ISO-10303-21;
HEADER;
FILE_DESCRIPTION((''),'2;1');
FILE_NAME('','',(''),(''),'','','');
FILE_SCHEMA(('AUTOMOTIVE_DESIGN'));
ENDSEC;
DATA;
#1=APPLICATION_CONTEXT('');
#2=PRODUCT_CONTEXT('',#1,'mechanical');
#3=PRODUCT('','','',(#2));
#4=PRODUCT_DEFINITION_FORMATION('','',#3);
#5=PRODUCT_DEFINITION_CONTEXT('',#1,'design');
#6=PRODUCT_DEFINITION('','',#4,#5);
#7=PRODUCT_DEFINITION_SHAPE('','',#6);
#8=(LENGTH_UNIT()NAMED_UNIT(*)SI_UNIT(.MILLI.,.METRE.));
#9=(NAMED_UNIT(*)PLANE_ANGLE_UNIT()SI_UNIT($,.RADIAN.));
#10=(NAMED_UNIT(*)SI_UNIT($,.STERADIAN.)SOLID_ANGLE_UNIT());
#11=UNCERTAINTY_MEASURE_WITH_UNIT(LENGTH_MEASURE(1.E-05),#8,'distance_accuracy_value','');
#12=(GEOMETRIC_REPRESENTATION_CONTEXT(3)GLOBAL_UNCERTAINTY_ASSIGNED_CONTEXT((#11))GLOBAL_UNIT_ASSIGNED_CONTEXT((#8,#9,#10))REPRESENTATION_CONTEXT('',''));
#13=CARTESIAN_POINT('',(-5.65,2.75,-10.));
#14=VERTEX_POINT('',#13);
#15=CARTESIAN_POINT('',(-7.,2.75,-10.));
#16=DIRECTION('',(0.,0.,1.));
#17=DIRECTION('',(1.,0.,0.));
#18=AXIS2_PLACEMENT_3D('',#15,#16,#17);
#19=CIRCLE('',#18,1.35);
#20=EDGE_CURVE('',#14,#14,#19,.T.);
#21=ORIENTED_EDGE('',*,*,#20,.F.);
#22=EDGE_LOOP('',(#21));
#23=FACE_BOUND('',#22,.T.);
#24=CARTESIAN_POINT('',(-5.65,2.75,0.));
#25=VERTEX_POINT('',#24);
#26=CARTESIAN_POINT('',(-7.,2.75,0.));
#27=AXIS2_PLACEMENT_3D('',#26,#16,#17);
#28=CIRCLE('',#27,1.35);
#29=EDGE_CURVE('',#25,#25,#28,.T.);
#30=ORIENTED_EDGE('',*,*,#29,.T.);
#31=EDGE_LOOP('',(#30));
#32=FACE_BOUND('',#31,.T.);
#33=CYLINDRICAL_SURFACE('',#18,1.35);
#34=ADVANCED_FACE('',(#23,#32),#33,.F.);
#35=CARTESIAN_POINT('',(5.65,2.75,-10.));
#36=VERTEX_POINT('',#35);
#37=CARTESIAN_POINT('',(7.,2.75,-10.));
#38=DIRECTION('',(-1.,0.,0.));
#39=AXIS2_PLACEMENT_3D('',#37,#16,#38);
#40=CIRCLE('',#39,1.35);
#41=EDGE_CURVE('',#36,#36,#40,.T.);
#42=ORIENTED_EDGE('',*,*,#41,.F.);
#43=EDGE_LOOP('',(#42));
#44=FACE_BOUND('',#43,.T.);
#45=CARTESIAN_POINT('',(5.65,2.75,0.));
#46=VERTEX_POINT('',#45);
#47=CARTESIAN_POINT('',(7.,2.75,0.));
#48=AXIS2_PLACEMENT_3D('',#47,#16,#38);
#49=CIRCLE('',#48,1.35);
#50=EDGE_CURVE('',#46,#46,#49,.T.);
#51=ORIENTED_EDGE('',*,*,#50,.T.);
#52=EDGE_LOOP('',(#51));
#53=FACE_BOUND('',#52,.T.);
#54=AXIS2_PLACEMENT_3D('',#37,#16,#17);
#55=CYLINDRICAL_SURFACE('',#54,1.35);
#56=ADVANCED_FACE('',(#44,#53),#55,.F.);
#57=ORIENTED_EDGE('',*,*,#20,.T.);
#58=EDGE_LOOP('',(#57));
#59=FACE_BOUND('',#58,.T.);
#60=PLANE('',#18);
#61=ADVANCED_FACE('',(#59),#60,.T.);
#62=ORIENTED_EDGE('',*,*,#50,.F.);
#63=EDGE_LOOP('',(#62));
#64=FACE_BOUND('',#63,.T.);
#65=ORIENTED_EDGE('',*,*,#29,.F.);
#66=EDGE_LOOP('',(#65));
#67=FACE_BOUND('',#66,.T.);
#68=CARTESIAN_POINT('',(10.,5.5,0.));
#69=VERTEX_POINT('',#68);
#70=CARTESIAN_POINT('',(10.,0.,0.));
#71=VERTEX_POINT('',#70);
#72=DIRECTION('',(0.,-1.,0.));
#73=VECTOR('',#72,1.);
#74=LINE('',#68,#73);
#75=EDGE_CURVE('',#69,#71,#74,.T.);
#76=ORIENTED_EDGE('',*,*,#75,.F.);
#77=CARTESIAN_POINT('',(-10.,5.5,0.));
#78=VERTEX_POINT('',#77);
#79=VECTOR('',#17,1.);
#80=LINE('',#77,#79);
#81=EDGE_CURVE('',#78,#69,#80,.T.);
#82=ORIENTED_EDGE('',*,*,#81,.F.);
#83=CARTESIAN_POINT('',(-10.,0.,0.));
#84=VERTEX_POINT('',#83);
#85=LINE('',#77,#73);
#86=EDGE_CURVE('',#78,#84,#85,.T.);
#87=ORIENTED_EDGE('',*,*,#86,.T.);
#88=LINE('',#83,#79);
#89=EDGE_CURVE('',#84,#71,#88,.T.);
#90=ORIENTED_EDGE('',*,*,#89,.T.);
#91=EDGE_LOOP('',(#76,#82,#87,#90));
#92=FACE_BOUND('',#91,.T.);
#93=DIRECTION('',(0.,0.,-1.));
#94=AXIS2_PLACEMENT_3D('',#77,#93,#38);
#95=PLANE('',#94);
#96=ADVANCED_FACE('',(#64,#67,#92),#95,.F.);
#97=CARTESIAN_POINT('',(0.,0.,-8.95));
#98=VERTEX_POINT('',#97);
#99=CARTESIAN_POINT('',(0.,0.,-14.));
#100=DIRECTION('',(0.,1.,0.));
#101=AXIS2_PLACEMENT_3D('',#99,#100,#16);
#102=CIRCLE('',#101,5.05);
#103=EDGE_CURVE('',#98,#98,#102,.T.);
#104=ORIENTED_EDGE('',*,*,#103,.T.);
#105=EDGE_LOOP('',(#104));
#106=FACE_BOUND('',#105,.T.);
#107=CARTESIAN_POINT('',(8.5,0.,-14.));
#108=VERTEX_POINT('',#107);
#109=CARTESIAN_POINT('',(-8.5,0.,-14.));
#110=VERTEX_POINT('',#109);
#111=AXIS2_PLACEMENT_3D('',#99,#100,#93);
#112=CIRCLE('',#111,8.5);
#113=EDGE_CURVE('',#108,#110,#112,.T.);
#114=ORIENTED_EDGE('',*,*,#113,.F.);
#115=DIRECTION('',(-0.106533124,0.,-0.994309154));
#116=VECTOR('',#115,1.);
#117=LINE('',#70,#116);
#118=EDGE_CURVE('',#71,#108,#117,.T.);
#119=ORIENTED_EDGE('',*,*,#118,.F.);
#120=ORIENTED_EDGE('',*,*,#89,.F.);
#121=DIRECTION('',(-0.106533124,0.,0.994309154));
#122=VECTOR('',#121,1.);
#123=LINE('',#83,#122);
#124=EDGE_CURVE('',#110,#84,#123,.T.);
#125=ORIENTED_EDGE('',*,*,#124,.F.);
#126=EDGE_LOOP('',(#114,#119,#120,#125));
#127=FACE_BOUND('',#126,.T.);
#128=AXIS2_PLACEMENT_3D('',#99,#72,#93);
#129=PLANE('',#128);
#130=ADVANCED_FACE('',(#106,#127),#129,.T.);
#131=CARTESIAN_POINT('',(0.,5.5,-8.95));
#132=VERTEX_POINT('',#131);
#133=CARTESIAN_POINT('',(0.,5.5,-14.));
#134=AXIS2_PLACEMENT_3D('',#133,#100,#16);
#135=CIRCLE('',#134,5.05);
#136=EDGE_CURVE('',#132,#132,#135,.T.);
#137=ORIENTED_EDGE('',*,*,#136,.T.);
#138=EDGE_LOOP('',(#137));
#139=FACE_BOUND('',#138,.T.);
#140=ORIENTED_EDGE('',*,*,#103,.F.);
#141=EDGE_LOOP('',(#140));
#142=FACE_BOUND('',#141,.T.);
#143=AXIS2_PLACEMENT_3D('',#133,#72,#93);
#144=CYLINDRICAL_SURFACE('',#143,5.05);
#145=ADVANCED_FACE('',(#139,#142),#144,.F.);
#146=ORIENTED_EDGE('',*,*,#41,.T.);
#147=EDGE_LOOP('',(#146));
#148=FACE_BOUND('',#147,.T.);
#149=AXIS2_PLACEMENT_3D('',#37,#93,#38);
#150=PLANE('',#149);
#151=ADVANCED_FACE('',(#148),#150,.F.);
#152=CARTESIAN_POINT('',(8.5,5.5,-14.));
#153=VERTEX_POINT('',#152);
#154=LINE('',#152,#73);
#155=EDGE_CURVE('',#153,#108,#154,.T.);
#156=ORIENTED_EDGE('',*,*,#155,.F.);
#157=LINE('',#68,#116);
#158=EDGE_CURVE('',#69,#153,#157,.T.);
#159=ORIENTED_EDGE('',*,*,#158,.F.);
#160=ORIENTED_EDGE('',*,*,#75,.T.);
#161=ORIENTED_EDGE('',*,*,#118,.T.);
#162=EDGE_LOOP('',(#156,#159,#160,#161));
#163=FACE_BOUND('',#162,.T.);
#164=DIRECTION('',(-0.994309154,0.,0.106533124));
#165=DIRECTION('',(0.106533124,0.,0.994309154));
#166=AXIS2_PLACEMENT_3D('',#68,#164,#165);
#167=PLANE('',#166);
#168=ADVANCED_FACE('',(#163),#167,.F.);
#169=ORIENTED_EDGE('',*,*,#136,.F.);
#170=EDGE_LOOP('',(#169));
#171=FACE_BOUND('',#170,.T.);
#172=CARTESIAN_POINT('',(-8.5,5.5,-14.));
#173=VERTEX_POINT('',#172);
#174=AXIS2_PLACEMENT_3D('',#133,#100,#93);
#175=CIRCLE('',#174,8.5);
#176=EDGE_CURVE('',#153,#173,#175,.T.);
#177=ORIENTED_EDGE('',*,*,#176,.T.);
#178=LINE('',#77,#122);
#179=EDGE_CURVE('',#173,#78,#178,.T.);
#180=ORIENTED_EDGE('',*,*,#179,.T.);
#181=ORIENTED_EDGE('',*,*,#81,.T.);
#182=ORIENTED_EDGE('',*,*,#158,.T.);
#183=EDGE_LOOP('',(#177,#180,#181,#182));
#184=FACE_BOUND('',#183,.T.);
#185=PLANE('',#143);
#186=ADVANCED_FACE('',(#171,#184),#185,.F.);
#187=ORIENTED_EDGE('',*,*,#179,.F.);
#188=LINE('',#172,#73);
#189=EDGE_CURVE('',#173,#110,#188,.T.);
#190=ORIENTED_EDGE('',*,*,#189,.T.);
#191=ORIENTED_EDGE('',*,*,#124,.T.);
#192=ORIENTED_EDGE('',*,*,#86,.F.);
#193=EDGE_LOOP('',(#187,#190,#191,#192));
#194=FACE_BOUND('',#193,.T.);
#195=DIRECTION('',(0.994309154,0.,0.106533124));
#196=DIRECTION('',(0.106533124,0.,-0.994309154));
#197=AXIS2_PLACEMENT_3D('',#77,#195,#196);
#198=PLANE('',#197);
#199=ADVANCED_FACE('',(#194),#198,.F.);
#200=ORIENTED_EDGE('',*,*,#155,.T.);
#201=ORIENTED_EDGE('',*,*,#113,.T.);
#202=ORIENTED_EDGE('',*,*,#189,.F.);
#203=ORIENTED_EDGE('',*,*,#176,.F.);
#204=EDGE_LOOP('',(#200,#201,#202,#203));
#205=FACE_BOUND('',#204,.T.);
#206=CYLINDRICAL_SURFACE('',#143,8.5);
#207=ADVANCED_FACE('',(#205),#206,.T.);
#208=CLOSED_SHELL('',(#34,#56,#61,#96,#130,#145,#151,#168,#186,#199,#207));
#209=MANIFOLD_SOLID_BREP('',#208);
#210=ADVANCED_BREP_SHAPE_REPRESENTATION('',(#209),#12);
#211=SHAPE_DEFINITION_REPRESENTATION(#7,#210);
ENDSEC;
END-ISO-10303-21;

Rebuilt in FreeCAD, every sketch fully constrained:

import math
import FreeCAD as App
import Part
import Sketcher
from FreeCAD import Vector
Q = App.Units.Quantity

doc = App.newDocument("Part")
body = doc.addObject("PartDesign::Body", "Body")

sketch1 = doc.addObject("Sketcher::SketchObject", "Sketch")
body.addObject(sketch1)
sketch1.AttachmentSupport = (doc.XZ_Plane, [""])
sketch1.MapMode = "FlatFace"
sketch1.addGeometry([
    Part.LineSegment(Vector(-8.5, -14, 0), Vector(-10, 0, 0)),
    Part.LineSegment(Vector(-10, 0, 0), Vector(10, 0, 0)),
    Part.LineSegment(Vector(10, 0, 0), Vector(8.5, -14, 0)),
    Part.ArcOfCircle(Part.Circle(Vector(0, -14, 0), Vector(0, 0, 1), 8.5), math.radians(180), math.radians(360)),
    Part.Circle(Vector(0, -14, 0), Vector(0, 0, 1), 5.05),
], False)
sketch1.addConstraint([
    Sketcher.Constraint("Coincident", 0, 2, 1, 1),
    Sketcher.Constraint("Coincident", 1, 2, 2, 1),
    Sketcher.Constraint("Coincident", 2, 2, 3, 2),
    Sketcher.Constraint("Coincident", 3, 1, 0, 1),
    Sketcher.Constraint("Horizontal", 1),
    Sketcher.Constraint("Coincident", 4, 3, 3, 3),
    Sketcher.Constraint("Symmetric", 0, 2, 1, 2, -1, 1),
    Sketcher.Constraint("Symmetric", 2, 2, 3, 1, -2),
    Sketcher.Constraint("Horizontal", 4, 3, 2, 2),
    Sketcher.Constraint("Diameter", 4, Q("10.1 mm")),
    Sketcher.Constraint("Radius", 3, Q("8.5 mm")),
    Sketcher.Constraint("DistanceX", 1, 1, 1, 2, Q("20 mm")),
    Sketcher.Constraint("DistanceY", 3, 3, -1, 1, Q("14 mm")),
])
pad1 = doc.addObject("PartDesign::Pad", "Pad")
body.addObject(pad1)
pad1.Profile = sketch1
pad1.Length = 5.5
pad1.Reversed = True

sketch2 = doc.addObject("Sketcher::SketchObject", "Sketch001")
body.addObject(sketch2)
sketch2.AttachmentSupport = (doc.XY_Plane, [""])
sketch2.MapMode = "FlatFace"
sketch2.addGeometry([
    Part.Circle(Vector(-7, 2.75, 0), Vector(0, 0, 1), 1.35),
    Part.Circle(Vector(7, 2.75, 0), Vector(0, 0, 1), 1.35),
], False)
sketch2.addConstraint([
    Sketcher.Constraint("Equal", 0, 1),
    Sketcher.Constraint("Symmetric", 0, 3, 1, 3, -2),
    Sketcher.Constraint("Diameter", 0, Q("2.7 mm")),
    Sketcher.Constraint("DistanceX", 0, 3, -1, 1, Q("7 mm")),
    Sketcher.Constraint("DistanceY", -1, 1, 0, 3, Q("2.75 mm")),
])
pocket1 = doc.addObject("PartDesign::Pocket", "Pocket")
body.addObject(pocket1)
pocket1.Profile = sketch2
pocket1.Length = 10

doc.recompute()
